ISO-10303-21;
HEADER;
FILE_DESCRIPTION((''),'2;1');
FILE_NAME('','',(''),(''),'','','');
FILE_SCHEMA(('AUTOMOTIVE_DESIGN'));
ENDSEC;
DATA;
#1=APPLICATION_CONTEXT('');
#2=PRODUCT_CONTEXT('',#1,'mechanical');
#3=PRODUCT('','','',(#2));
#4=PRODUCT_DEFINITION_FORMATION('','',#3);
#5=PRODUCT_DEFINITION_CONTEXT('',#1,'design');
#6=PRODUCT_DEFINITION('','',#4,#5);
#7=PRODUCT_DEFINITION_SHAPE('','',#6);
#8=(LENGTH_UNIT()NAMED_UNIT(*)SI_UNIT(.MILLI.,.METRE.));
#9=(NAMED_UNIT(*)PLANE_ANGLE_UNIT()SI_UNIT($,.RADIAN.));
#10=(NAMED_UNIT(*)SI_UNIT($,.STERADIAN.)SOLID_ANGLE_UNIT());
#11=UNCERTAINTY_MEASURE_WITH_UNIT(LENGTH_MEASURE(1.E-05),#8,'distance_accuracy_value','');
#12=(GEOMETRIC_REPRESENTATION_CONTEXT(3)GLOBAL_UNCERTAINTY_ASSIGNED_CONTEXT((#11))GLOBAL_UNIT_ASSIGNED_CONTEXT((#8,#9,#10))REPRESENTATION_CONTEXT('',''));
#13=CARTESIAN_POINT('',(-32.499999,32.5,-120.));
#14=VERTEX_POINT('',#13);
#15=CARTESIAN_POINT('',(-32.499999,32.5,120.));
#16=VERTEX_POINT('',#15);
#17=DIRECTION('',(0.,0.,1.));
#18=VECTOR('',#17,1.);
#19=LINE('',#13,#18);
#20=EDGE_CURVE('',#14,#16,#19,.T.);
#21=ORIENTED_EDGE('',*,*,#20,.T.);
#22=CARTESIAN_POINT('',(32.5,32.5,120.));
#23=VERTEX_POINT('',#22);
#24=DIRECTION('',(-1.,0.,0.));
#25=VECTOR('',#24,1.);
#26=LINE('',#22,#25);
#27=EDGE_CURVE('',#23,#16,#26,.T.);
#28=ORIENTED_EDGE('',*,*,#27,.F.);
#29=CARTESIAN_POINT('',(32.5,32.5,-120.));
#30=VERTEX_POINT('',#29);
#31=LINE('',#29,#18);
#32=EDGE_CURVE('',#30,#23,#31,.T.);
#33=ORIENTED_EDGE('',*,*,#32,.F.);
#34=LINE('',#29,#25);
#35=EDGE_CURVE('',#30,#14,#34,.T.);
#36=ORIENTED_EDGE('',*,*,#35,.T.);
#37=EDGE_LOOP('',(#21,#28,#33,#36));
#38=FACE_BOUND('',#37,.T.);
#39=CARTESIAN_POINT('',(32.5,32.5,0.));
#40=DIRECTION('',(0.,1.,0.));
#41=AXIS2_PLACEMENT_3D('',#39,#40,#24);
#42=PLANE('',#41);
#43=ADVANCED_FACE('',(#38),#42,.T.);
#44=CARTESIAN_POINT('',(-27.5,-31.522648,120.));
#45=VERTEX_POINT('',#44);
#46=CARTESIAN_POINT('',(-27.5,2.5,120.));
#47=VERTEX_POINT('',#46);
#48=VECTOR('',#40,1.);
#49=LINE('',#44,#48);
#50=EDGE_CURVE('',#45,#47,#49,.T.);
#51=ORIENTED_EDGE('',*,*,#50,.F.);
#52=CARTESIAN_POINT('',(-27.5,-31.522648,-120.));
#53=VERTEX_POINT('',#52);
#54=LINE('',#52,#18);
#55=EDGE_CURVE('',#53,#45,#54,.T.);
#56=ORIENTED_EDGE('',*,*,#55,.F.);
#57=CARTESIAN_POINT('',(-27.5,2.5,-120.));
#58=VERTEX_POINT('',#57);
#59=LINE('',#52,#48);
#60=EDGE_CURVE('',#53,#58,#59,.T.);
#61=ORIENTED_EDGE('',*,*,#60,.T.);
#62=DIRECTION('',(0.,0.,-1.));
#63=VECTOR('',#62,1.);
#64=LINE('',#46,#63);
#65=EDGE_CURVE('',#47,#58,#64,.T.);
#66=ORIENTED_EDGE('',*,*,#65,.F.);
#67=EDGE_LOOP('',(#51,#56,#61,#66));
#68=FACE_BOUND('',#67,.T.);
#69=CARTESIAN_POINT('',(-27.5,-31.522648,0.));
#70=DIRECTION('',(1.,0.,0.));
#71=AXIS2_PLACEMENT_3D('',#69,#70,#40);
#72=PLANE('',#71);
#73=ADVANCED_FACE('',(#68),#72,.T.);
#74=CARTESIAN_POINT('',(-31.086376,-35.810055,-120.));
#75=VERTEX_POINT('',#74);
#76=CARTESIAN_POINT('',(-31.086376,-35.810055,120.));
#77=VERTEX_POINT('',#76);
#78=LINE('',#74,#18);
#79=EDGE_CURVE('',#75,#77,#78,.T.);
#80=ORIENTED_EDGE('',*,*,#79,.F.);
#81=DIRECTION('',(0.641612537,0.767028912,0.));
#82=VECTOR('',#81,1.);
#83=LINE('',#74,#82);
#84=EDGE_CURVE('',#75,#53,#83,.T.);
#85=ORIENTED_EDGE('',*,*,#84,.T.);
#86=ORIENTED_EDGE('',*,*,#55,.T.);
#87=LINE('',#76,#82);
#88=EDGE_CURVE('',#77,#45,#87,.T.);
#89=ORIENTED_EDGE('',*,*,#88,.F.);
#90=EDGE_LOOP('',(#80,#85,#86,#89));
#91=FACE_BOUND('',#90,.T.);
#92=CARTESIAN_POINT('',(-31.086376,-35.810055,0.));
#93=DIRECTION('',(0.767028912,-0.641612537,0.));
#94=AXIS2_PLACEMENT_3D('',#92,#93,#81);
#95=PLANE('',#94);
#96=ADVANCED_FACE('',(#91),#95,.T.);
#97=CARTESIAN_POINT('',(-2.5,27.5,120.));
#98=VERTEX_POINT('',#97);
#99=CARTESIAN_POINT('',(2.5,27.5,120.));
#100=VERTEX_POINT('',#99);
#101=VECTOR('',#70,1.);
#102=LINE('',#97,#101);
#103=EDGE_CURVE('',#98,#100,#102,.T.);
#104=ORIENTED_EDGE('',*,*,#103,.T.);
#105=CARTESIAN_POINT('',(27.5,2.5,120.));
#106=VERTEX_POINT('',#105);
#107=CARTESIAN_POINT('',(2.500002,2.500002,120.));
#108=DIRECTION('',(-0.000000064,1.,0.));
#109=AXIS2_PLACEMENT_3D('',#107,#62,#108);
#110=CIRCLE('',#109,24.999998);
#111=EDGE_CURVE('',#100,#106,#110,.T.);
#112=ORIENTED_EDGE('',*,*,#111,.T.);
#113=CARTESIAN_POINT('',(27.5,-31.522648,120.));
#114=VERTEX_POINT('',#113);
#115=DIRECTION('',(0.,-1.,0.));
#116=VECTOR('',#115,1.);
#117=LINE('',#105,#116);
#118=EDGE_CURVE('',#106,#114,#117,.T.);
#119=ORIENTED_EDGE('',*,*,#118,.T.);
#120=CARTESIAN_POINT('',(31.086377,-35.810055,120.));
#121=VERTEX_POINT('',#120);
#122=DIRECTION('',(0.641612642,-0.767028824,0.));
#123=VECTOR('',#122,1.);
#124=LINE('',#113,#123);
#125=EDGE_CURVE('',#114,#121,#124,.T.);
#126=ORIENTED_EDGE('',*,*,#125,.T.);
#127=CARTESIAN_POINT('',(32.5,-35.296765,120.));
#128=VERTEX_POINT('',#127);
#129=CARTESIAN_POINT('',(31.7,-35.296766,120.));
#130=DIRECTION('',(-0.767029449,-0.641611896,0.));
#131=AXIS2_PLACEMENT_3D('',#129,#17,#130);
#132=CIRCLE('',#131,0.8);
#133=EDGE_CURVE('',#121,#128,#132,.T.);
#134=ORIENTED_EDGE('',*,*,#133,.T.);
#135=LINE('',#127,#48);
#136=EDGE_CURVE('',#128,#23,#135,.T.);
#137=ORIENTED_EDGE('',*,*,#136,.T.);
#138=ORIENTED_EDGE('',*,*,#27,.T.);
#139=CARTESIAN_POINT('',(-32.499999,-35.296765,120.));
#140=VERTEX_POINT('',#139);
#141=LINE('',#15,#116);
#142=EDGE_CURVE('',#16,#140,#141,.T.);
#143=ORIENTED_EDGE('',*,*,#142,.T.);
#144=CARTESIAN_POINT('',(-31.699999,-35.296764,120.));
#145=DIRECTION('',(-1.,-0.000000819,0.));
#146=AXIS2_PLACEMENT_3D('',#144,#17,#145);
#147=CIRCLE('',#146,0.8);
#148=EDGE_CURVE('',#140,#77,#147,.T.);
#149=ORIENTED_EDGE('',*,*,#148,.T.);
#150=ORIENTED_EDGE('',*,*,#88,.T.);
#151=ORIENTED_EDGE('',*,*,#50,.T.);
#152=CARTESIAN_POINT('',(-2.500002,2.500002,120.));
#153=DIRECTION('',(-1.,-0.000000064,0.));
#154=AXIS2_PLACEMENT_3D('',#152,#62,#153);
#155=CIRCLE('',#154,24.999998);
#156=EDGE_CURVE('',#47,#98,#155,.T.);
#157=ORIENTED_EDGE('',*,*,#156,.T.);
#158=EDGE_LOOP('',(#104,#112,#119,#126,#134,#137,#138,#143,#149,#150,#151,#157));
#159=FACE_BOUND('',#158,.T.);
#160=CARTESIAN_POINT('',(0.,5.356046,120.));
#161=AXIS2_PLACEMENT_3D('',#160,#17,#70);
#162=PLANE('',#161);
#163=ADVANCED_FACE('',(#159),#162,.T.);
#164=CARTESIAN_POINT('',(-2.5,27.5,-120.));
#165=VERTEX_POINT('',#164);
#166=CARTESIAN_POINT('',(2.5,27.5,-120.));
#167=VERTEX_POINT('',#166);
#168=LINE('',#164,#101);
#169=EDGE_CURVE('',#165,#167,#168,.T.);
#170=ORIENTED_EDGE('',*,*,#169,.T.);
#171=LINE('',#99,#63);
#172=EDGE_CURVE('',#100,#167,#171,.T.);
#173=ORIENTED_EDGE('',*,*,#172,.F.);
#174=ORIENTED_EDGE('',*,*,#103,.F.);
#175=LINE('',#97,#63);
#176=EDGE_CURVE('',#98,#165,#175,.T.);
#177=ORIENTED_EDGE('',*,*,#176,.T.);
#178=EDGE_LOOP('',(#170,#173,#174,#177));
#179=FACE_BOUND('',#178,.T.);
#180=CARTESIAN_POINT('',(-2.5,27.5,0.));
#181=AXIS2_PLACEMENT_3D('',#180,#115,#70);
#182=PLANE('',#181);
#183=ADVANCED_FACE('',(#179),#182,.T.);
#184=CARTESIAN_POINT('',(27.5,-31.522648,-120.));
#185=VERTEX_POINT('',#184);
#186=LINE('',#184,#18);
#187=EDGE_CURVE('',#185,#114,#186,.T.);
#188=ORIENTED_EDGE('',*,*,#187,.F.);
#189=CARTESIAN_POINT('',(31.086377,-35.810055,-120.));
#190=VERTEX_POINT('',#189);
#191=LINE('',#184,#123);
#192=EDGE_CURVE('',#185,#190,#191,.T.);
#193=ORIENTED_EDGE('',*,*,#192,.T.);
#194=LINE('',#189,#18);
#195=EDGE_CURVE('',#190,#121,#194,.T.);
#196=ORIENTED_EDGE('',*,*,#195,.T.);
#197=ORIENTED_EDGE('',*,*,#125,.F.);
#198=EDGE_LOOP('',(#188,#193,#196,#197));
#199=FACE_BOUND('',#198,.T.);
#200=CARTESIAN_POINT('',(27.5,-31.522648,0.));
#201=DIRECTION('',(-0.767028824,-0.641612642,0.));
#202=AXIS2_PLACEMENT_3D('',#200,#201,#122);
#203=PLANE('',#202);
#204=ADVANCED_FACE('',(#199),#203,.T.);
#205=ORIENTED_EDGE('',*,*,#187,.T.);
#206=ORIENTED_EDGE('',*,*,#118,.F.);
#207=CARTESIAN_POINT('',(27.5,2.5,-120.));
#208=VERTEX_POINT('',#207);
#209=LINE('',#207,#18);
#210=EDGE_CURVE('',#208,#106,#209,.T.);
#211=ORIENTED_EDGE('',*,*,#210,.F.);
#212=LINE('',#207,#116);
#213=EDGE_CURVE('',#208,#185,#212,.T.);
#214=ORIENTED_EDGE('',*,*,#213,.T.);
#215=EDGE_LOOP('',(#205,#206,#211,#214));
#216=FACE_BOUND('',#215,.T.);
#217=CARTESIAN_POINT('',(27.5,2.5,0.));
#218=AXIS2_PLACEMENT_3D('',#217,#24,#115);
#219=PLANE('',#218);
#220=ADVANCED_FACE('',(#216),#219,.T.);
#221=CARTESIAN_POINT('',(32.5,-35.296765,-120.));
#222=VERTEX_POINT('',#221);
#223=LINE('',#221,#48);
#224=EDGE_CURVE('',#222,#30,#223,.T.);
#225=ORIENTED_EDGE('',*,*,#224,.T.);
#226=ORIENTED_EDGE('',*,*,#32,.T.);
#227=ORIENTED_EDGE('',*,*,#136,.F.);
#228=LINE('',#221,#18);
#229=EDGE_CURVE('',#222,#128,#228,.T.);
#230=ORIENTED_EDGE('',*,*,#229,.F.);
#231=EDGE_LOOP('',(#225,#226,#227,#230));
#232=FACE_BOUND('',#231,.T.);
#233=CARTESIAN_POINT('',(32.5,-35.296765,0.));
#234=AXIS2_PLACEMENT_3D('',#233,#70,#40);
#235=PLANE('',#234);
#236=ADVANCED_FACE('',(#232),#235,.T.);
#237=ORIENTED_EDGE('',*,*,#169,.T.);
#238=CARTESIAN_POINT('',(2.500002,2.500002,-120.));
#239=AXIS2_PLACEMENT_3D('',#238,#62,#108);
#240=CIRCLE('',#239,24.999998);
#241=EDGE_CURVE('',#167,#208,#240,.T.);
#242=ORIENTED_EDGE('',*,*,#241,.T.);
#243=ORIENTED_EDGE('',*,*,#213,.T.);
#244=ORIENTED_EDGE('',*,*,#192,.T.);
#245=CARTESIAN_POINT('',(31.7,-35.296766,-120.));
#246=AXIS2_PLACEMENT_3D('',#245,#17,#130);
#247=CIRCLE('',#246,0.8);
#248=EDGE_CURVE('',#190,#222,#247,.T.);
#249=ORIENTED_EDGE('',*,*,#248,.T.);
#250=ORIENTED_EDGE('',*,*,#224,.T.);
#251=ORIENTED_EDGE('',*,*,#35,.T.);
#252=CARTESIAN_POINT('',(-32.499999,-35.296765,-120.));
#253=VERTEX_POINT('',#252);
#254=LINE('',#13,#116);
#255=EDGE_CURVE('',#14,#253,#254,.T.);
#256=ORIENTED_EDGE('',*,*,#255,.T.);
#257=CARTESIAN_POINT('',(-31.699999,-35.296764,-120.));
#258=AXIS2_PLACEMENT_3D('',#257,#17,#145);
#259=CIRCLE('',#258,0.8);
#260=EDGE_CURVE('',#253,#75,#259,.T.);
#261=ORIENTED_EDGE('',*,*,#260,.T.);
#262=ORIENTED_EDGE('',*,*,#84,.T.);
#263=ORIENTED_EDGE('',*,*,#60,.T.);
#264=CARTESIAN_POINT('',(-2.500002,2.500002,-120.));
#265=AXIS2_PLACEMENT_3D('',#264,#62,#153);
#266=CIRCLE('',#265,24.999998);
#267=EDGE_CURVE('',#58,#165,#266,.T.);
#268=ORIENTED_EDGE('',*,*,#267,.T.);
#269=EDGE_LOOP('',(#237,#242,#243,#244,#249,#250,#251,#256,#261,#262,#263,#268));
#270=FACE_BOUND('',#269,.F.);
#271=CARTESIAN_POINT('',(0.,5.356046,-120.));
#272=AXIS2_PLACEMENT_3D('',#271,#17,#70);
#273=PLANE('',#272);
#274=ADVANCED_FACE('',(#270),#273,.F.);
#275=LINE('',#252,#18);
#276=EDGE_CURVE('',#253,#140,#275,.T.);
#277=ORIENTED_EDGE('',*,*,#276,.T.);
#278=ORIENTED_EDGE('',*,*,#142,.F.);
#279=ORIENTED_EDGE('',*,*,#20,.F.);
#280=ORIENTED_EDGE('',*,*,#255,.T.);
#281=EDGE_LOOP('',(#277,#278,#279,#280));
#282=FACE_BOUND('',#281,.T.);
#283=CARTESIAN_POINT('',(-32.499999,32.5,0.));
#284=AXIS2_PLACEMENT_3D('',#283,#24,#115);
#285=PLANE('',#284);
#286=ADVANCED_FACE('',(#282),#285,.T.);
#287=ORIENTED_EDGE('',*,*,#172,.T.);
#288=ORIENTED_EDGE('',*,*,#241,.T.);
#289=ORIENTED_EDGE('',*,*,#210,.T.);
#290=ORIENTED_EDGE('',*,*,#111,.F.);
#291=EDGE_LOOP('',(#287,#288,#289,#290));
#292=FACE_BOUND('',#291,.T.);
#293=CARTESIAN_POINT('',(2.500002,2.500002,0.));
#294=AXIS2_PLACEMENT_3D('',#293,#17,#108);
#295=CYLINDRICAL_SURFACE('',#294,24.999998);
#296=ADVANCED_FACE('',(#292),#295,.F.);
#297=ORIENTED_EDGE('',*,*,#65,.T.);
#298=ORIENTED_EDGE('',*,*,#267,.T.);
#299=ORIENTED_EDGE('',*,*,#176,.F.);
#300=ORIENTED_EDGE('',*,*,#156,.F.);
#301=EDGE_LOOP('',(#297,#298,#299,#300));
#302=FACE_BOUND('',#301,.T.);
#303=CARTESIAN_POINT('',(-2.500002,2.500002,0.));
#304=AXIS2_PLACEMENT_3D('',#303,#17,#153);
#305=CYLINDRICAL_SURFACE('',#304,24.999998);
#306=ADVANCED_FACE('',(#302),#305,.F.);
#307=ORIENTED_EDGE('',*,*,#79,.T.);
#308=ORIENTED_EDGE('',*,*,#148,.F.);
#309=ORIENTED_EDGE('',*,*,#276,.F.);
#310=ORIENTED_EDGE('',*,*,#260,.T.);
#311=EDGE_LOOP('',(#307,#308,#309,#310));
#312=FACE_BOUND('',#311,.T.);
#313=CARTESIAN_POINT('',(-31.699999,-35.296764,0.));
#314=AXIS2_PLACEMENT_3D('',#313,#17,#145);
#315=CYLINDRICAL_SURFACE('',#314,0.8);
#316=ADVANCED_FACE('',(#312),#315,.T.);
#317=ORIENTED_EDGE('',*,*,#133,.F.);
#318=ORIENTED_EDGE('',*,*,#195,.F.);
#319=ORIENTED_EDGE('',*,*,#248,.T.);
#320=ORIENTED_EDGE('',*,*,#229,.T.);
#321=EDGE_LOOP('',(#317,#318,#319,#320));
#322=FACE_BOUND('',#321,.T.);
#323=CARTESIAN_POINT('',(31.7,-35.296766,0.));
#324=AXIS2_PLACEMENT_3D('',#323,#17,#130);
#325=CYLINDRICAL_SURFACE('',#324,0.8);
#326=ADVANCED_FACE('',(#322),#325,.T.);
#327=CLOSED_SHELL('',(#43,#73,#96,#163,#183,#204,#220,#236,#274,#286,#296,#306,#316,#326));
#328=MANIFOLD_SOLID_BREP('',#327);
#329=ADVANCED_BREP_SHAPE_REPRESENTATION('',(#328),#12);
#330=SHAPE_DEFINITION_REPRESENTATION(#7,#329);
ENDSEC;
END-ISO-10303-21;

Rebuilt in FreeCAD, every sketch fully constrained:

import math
import FreeCAD as App
import Part
import Sketcher
from FreeCAD import Vector
Q = App.Units.Quantity

doc = App.newDocument("Part")
body = doc.addObject("PartDesign::Body", "Body")

sketch1 = body.newObject("Sketcher::SketchObject", "Sketch")
sketch1.AttachmentSupport = (doc.getObject("XY_Plane"), [""])
sketch1.MapMode = "FlatFace"
sketch1.addGeometry(Part.ArcOfCircle(Part.Circle(Vector(2.5, 2.5, 0), Vector(0, 0, 1), 25), math.radians(0), math.radians(90)), False)
sketch1.addGeometry(Part.LineSegment(Vector(27.5, 2.5, 0), Vector(27.5, -31.5, 0)), False)
sketch1.addGeometry(Part.LineSegment(Vector(27.5, -31.5, 0), Vector(31.1, -35.8, 0)), False)
sketch1.addGeometry(Part.ArcOfCircle(Part.Circle(Vector(31.7, -35.3, 0), Vector(0, 0, 1), 0.8), math.radians(-140), math.radians(0)), False)
sketch1.addGeometry(Part.LineSegment(Vector(32.5, -35.3, 0), Vector(32.5, 32.5, 0)), False)
sketch1.addGeometry(Part.LineSegment(Vector(32.5, 32.5, 0), Vector(-32.5, 32.5, 0)), False)
sketch1.addGeometry(Part.LineSegment(Vector(-32.5, 32.5, 0), Vector(-32.5, -35.3, 0)), False)
sketch1.addGeometry(Part.ArcOfCircle(Part.Circle(Vector(-31.7, -35.3, 0), Vector(0, 0, 1), 0.8), math.radians(-180), math.radians(-40)), False)
sketch1.addGeometry(Part.LineSegment(Vector(-31.1, -35.8, 0), Vector(-27.5, -31.5, 0)), False)
sketch1.addGeometry(Part.LineSegment(Vector(-27.5, -31.5, 0), Vector(-27.5, 2.5, 0)), False)
sketch1.addGeometry(Part.ArcOfCircle(Part.Circle(Vector(-2.5, 2.5, 0), Vector(0, 0, 1), 25), math.radians(90), math.radians(180)), False)
sketch1.addGeometry(Part.LineSegment(Vector(-2.5, 27.5, 0), Vector(2.5, 27.5, 0)), False)
sketch1.addConstraint(Sketcher.Constraint("Tangent", 0, 1, 1, 1))
sketch1.addConstraint(Sketcher.Constraint("Coincident", 1, 2, 2, 1))
sketch1.addConstraint(Sketcher.Constraint("Tangent", 2, 2, 3, 1))
sketch1.addConstraint(Sketcher.Constraint("Tangent", 3, 2, 4, 1))
sketch1.addConstraint(Sketcher.Constraint("Coincident", 4, 2, 5, 1))
sketch1.addConstraint(Sketcher.Constraint("Coincident", 5, 2, 6, 1))
sketch1.addConstraint(Sketcher.Constraint("Tangent", 6, 2, 7, 1))
sketch1.addConstraint(Sketcher.Constraint("Tangent", 7, 2, 8, 1))
sketch1.addConstraint(Sketcher.Constraint("Coincident", 8, 2, 9, 1))
sketch1.addConstraint(Sketcher.Constraint("Tangent", 9, 2, 10, 2))
sketch1.addConstraint(Sketcher.Constraint("Tangent", 10, 1, 11, 1))
sketch1.addConstraint(Sketcher.Constraint("Tangent", 11, 2, 0, 2))
sketch1.addConstraint(Sketcher.Constraint("Vertical", 1))
sketch1.addConstraint(Sketcher.Constraint("Vertical", 4))
sketch1.addConstraint(Sketcher.Constraint("Horizontal", 5))
sketch1.addConstraint(Sketcher.Constraint("Vertical", 6))
sketch1.addConstraint(Sketcher.Constraint("Vertical", 9))
sketch1.addConstraint(Sketcher.Constraint("Horizontal", 11))
sketch1.addConstraint(Sketcher.Constraint("Equal", 3, 7))
sketch1.addConstraint(Sketcher.Constraint("Equal", 0, 10))
sketch1.addConstraint(Sketcher.Constraint("Symmetric", 3, 3, 7, 3, -2))
sketch1.addConstraint(Sketcher.Constraint("Symmetric", 1, 2, 8, 2, -2))
sketch1.addConstraint(Sketcher.Constraint("Radius", 0, Q("24.999998 mm")))
sketch1.addConstraint(Sketcher.Constraint("Radius", 3, Q("0.8 mm")))
sketch1.addConstraint(Sketcher.Constraint("DistanceX", 5, 2, 5, 1, Q("64.999999 mm")))
sketch1.addConstraint(Sketcher.Constraint("DistanceX", 11, 1, 11, 2, Q("5 mm")))
sketch1.addConstraint(Sketcher.Constraint("DistanceY", 0, 1, 4, 2, Q("30 mm")))
sketch1.addConstraint(Sketcher.Constraint("DistanceY", -1, 1, 0, 3, Q("2.500002 mm")))
sketch1.addConstraint(Sketcher.Constraint("DistanceY", 1, 2, 1, 1, Q("34.022648 mm")))
sketch1.addConstraint(Sketcher.Constraint("Distance", 2, Q("5.58963 mm")))
pad1 = body.newObject("PartDesign::Pad", "Pad")
pad1.Profile = sketch1
pad1.Type = "TwoLengths"
pad1.Length = 120
pad1.Length2 = 120

doc.recompute()
